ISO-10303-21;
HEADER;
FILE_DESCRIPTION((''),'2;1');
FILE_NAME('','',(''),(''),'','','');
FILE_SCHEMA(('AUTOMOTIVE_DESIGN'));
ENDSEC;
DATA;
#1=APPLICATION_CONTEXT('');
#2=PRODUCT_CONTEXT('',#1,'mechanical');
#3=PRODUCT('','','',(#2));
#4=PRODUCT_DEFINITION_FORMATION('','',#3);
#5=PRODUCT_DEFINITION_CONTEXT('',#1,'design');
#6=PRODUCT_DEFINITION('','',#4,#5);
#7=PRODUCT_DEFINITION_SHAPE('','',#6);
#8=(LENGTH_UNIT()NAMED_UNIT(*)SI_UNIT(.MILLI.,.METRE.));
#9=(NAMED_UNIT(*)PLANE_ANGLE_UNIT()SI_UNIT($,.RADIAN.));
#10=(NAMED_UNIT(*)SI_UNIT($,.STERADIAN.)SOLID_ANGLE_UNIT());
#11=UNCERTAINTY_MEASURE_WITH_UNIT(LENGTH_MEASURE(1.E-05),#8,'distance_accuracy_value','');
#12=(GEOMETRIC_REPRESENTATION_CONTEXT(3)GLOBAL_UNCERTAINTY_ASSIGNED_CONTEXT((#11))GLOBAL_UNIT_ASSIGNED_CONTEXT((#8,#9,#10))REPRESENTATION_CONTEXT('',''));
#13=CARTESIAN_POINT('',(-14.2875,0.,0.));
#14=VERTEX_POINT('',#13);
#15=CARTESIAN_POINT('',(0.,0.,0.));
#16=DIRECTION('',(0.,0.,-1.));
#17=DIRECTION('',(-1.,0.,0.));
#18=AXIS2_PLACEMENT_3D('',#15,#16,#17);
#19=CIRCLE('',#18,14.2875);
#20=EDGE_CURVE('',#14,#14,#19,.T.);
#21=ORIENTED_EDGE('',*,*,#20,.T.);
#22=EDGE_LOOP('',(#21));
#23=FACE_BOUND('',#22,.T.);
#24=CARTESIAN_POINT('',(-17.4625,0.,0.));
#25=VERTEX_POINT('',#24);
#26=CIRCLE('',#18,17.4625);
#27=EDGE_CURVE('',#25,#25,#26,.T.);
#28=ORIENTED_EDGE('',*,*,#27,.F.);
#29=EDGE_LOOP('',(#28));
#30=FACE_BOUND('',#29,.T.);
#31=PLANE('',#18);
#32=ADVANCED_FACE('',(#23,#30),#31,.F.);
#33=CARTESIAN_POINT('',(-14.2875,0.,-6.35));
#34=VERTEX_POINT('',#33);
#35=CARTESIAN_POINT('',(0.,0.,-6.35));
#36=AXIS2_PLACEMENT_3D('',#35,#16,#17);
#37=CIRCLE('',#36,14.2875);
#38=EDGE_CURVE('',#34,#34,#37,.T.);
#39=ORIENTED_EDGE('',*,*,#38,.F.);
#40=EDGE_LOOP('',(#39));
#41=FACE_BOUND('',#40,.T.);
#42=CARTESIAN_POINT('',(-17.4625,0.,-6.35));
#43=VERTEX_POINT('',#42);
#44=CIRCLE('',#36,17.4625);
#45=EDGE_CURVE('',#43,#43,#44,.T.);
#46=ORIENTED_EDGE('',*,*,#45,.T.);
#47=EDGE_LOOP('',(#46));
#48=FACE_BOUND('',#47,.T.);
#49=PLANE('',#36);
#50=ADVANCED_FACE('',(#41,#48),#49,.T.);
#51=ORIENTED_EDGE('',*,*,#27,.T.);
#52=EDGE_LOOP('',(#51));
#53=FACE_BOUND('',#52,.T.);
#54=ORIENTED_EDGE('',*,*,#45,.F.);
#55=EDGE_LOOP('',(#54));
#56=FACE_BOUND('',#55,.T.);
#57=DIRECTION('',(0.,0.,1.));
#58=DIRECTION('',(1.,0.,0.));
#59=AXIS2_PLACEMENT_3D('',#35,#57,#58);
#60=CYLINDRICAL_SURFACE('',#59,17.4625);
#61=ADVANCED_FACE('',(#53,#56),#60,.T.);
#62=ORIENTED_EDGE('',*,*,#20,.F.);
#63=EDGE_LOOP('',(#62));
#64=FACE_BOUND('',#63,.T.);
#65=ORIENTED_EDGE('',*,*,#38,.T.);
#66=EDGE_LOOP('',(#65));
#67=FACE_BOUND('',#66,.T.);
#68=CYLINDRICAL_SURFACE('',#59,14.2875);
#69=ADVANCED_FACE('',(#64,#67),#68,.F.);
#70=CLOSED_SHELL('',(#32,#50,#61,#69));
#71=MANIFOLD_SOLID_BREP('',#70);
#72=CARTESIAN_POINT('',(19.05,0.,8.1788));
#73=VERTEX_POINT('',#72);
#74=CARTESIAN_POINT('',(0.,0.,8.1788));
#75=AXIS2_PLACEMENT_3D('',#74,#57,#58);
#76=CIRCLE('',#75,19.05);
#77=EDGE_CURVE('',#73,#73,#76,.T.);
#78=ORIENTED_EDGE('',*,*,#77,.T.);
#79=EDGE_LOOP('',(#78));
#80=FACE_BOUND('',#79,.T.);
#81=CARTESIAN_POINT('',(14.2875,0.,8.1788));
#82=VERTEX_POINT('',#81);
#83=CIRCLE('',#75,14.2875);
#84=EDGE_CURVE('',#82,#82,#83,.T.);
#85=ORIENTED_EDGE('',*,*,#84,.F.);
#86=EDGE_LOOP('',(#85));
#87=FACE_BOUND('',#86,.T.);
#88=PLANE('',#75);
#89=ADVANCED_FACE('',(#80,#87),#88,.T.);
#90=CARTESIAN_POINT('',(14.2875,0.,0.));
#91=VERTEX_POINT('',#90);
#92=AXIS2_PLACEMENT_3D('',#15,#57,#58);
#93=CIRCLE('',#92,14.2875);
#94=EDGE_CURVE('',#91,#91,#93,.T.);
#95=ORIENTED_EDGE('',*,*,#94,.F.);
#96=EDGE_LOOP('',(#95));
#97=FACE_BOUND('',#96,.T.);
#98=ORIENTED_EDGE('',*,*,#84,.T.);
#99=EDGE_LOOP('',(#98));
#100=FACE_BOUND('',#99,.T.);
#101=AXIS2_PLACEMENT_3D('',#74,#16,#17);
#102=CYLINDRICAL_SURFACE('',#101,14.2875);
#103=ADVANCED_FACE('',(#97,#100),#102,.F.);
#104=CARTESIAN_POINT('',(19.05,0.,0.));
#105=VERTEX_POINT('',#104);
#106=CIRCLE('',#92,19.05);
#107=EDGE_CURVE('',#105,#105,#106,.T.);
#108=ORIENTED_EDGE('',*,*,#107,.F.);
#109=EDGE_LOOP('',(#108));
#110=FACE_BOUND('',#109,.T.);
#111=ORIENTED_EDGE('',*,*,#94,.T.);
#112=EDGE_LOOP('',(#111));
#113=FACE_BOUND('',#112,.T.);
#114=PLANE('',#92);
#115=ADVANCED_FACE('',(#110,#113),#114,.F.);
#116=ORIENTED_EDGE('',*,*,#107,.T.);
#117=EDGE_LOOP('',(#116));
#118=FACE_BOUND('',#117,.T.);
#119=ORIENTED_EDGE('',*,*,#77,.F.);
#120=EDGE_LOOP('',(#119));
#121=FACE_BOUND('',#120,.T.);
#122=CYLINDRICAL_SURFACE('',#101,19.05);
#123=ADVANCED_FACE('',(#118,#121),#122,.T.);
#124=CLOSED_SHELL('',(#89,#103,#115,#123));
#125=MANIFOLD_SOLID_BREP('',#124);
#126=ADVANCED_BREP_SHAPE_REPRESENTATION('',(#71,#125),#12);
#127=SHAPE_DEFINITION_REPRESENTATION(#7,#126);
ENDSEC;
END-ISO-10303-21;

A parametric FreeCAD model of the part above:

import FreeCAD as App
import Part
import Sketcher

V = App.Vector
Q = App.Units.Quantity

doc = App.newDocument("Part")
params = doc.addObject("Spreadsheet::Sheet", "Params")
for row, (alias, value) in enumerate([
    ("sketch1_diameter", "1.5 in"),
    ("sketch1_diameter2", "1.125 in"),
    ("pad1_length", "0.322 in"),
    ("sketch2_diameter", "1.375 in"),
    ("sketch2_diameter2", "1.125 in"),
    ("pad2_length", "0.25 in"),
], start=1):
    params.set(f"A{row}", alias)
    params.set(f"B{row}", "=" + value)
    params.setAlias(f"B{row}", alias)

body = doc.addObject("PartDesign::Body", "Body")

# Sketch on XY plane
sketch1 = body.newObject("Sketcher::SketchObject", "Sketch")
sketch1.AttachmentSupport = (doc.getObject("XY_Plane"), [""])
sketch1.MapMode = "FlatFace"
sketch1.addGeometry(Part.Circle(V(0, 0, 0), V(0, 0, 1), 19), False)
sketch1.addGeometry(Part.Circle(V(0, 0, 0), V(0, 0, 1), 14), False)
sketch1.addConstraint(Sketcher.Constraint("Coincident", 0, 3, -1, 1))
sketch1.addConstraint(Sketcher.Constraint("Coincident", 1, 3, -1, 1))
sketch1.addConstraint(Sketcher.Constraint("Diameter", 0, Q("1.5 in")))
sketch1.addConstraint(Sketcher.Constraint("Diameter", 1, Q("1.125 in")))
sketch1.setExpression("Constraints[2]", "Params.sketch1_diameter")
sketch1.setExpression("Constraints[3]", "Params.sketch1_diameter2")
pad1 = body.newObject("PartDesign::Pad", "Pad")
pad1.Profile = sketch1
pad1.setExpression("Length", "Params.pad1_length")
body2 = doc.addObject("PartDesign::Body", "Body001")

# Sketch on XY plane
sketch2 = body2.newObject("Sketcher::SketchObject", "Sketch001")
sketch2.AttachmentSupport = (doc.getObject("XY_Plane001"), [""])
sketch2.MapMode = "FlatFace"
sketch2.addGeometry(Part.Circle(V(0, 0, 0), V(0, 0, 1), 17), False)
sketch2.addGeometry(Part.Circle(V(0, 0, 0), V(0, 0, 1), 14), False)
sketch2.addConstraint(Sketcher.Constraint("Coincident", 0, 3, -1, 1))
sketch2.addConstraint(Sketcher.Constraint("Coincident", 1, 3, -1, 1))
sketch2.addConstraint(Sketcher.Constraint("Diameter", 0, Q("1.375 in")))
sketch2.addConstraint(Sketcher.Constraint("Diameter", 1, Q("1.125 in")))
sketch2.setExpression("Constraints[2]", "Params.sketch2_diameter")
sketch2.setExpression("Constraints[3]", "Params.sketch2_diameter2")
pad2 = body2.newObject("PartDesign::Pad", "Pad001")
pad2.Profile = sketch2
pad2.setExpression("Length", "Params.pad2_length")
pad2.Reversed = True

doc.recompute()
